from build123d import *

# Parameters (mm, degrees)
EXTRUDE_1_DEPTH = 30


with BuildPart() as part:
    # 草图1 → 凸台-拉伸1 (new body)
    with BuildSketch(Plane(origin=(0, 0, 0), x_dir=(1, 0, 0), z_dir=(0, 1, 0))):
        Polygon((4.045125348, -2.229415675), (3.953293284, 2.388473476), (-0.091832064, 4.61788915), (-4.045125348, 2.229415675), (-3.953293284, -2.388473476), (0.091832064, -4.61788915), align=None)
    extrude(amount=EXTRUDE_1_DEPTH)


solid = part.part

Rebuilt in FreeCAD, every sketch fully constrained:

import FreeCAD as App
import Part
import Sketcher

V = App.Vector

doc = App.newDocument("Part")
body = doc.addObject("PartDesign::Body", "Body")

# Sketch on XZ plane
sketch1 = body.newObject("Sketcher::SketchObject", "Sketch")
sketch1.AttachmentSupport = (doc.getObject("XZ_Plane"), [""])
sketch1.MapMode = "FlatFace"
sketch1.addGeometry([
    Part.LineSegment(V(4.045125, 2.229416, 0), V(3.953293, -2.388473, 0)),  # 0
    Part.LineSegment(V(3.953293, -2.388473, 0), V(-0.091832, -4.617889, 0)),  # 1
    Part.LineSegment(V(-0.091832, -4.617889, 0), V(-4.045125, -2.229416, 0)),  # 2
    Part.LineSegment(V(-4.045125, -2.229416, 0), V(-3.953293, 2.388473, 0)),  # 3
    Part.LineSegment(V(-3.953293, 2.388473, 0), V(0.091832, 4.617889, 0)),  # 4
    Part.LineSegment(V(0.091832, 4.617889, 0), V(4.045125, 2.229416, 0)),  # 5
], False)
sketch1.addConstraint([
    Sketcher.Constraint("Coincident", 0, 2, 1, 1),
    Sketcher.Constraint("Coincident", 1, 2, 2, 1),
    Sketcher.Constraint("Coincident", 2, 2, 3, 1),
    Sketcher.Constraint("Coincident", 3, 2, 4, 1),
    Sketcher.Constraint("Coincident", 4, 2, 5, 1),
    Sketcher.Constraint("Coincident", 5, 2, 0, 1),
    Sketcher.Constraint("Symmetric", 0, 2, 3, 2, -1, 1),
    Sketcher.Constraint("Symmetric", 1, 2, 4, 2, -1, 1),
    Sketcher.Constraint("Symmetric", 2, 2, 5, 2, -1, 1),
    Sketcher.Constraint("Equal", 0, 1),
    Sketcher.Constraint("Equal", 1, 2),
    Sketcher.Constraint("DistanceY", 1, 2, -1, 1, 4.617889),
    Sketcher.Constraint("DistanceX", 2, 2, 0, 2, 7.998419),
    Sketcher.Constraint("DistanceY", 2, 2, 3, 2, 4.617889),
    Sketcher.Constraint("DistanceX", 3, 2, 1, 2, 3.861461),
])
pad1 = body.newObject("PartDesign::Pad", "Pad")
pad1.Profile = sketch1
pad1.Length = 30
pad1.Reversed = True

doc.recompute()
